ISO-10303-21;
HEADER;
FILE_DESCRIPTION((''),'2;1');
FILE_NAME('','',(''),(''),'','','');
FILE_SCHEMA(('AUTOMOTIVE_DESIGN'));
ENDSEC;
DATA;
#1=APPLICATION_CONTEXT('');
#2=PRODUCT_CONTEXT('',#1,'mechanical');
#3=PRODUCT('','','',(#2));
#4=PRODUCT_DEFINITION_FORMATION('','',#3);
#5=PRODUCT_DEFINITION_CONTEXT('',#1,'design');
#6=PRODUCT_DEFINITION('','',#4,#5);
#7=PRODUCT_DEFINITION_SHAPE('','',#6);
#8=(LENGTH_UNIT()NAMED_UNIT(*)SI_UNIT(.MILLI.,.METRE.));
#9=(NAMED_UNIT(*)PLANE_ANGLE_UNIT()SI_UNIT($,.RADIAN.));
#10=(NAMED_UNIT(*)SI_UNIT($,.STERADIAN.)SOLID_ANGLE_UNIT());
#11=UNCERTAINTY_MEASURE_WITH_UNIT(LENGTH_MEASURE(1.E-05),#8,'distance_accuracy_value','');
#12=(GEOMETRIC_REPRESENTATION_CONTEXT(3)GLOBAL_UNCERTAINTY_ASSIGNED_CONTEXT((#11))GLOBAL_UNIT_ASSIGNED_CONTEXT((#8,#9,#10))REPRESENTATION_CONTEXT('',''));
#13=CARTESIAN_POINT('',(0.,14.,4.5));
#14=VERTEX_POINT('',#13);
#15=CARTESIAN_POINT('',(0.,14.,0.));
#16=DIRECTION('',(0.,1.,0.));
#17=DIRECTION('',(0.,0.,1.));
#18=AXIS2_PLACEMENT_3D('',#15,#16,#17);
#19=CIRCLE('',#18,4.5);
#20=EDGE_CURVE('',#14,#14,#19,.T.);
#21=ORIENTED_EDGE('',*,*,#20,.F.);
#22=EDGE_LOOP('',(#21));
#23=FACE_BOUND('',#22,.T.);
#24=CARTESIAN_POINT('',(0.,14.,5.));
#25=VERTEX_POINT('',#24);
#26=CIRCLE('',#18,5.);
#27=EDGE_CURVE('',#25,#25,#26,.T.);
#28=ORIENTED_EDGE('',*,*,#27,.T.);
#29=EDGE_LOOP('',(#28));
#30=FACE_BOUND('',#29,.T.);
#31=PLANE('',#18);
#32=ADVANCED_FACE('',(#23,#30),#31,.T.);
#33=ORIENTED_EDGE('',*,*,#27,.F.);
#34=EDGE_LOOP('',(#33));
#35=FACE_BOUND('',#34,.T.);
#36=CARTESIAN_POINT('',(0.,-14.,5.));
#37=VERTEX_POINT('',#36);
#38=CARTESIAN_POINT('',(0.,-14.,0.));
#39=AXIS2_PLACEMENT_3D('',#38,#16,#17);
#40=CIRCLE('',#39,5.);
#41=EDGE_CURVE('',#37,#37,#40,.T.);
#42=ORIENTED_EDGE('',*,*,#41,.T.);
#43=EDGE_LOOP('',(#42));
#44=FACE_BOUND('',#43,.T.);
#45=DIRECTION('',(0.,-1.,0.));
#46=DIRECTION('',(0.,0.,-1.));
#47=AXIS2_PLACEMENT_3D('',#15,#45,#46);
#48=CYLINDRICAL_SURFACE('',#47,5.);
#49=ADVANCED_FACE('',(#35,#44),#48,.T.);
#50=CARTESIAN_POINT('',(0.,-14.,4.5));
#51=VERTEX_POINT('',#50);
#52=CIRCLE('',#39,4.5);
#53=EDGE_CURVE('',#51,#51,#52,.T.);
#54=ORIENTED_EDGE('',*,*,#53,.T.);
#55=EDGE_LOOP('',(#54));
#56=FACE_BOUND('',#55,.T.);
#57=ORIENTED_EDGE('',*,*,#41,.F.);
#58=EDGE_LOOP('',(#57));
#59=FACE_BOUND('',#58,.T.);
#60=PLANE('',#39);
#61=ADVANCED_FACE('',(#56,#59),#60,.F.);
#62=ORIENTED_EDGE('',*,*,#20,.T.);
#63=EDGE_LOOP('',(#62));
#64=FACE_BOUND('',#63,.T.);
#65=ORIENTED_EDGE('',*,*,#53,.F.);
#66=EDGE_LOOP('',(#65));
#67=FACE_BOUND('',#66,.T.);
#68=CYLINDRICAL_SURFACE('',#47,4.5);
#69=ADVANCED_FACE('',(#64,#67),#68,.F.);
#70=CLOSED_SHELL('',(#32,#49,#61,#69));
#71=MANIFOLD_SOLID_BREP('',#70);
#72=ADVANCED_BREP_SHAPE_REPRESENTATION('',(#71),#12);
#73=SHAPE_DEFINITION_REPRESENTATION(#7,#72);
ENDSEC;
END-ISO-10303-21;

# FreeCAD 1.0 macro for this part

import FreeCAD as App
import Part
import Sketcher

doc = App.newDocument("Part")
body = doc.addObject("PartDesign::Body", "Body")

sketch1 = body.newObject("Sketcher::SketchObject", "Sketch")
sketch1.AttachmentSupport = (doc.getObject("XZ_Plane"), [""])
sketch1.MapMode = "FlatFace"
sketch1.addGeometry([
    Part.Circle(App.Vector(0, 0, 0), App.Vector(0, 0, 1), 5),
    Part.Circle(App.Vector(0, 0, 0), App.Vector(0, 0, 1), 4.5),
], False)
sketch1.addConstraint([
    Sketcher.Constraint("Coincident", 0, 3, -1, 1),
    Sketcher.Constraint("Coincident", 1, 3, -1, 1),
    Sketcher.Constraint("Diameter", 0, 10.0),
    Sketcher.Constraint("Diameter", 1, 9.0),
])
pad1 = body.newObject("PartDesign::Pad", "Pad")
pad1.Profile = sketch1
pad1.Length = 28
pad1.Midplane = True

doc.recompute()
